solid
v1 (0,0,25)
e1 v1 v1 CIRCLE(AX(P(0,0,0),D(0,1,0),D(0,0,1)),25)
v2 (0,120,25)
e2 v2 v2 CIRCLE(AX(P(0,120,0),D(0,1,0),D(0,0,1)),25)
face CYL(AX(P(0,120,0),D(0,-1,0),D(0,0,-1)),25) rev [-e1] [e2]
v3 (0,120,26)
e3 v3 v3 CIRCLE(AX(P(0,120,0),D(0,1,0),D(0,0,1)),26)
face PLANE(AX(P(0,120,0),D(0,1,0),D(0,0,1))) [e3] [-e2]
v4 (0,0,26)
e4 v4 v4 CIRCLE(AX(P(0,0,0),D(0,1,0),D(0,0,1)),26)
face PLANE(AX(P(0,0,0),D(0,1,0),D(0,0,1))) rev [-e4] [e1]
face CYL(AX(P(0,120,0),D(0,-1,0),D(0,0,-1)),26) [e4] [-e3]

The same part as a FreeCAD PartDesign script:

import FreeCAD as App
import Part
import Sketcher

doc = App.newDocument("Part")
params = doc.addObject("Spreadsheet::Sheet", "Params")
for row, (alias, value) in enumerate([
    ("sketch1_diameter", "52 mm"),
    ("sketch1_diameter2", "50 mm"),
    ("pad1_length", "120 mm"),
], start=1):
    params.set(f"A{row}", alias)
    params.set(f"B{row}", "=" + value)
    params.setAlias(f"B{row}", alias)

body = doc.addObject("PartDesign::Body", "Body")

sketch1 = body.newObject("Sketcher::SketchObject", "Sketch")
sketch1.AttachmentSupport = (doc.getObject("XZ_Plane"), [""])
sketch1.MapMode = "FlatFace"
sketch1.addGeometry(Part.Circle(App.Vector(0, 0, 0), App.Vector(0, 0, 1), 26), False)
sketch1.addGeometry(Part.Circle(App.Vector(0, 0, 0), App.Vector(0, 0, 1), 25), False)
sketch1.addConstraint(Sketcher.Constraint("Coincident", 0, 3, -1, 1))
sketch1.addConstraint(Sketcher.Constraint("Coincident", 1, 3, -1, 1))
sketch1.addConstraint(Sketcher.Constraint("Diameter", 0, 52.0))
sketch1.addConstraint(Sketcher.Constraint("Diameter", 1, 50.0))
sketch1.setExpression("Constraints[2]", "Params.sketch1_diameter")
sketch1.setExpression("Constraints[3]", "Params.sketch1_diameter2")
pad1 = body.newObject("PartDesign::Pad", "Pad")
pad1.Profile = sketch1
pad1.setExpression("Length", "Params.pad1_length")
pad1.Reversed = True

doc.recompute()
